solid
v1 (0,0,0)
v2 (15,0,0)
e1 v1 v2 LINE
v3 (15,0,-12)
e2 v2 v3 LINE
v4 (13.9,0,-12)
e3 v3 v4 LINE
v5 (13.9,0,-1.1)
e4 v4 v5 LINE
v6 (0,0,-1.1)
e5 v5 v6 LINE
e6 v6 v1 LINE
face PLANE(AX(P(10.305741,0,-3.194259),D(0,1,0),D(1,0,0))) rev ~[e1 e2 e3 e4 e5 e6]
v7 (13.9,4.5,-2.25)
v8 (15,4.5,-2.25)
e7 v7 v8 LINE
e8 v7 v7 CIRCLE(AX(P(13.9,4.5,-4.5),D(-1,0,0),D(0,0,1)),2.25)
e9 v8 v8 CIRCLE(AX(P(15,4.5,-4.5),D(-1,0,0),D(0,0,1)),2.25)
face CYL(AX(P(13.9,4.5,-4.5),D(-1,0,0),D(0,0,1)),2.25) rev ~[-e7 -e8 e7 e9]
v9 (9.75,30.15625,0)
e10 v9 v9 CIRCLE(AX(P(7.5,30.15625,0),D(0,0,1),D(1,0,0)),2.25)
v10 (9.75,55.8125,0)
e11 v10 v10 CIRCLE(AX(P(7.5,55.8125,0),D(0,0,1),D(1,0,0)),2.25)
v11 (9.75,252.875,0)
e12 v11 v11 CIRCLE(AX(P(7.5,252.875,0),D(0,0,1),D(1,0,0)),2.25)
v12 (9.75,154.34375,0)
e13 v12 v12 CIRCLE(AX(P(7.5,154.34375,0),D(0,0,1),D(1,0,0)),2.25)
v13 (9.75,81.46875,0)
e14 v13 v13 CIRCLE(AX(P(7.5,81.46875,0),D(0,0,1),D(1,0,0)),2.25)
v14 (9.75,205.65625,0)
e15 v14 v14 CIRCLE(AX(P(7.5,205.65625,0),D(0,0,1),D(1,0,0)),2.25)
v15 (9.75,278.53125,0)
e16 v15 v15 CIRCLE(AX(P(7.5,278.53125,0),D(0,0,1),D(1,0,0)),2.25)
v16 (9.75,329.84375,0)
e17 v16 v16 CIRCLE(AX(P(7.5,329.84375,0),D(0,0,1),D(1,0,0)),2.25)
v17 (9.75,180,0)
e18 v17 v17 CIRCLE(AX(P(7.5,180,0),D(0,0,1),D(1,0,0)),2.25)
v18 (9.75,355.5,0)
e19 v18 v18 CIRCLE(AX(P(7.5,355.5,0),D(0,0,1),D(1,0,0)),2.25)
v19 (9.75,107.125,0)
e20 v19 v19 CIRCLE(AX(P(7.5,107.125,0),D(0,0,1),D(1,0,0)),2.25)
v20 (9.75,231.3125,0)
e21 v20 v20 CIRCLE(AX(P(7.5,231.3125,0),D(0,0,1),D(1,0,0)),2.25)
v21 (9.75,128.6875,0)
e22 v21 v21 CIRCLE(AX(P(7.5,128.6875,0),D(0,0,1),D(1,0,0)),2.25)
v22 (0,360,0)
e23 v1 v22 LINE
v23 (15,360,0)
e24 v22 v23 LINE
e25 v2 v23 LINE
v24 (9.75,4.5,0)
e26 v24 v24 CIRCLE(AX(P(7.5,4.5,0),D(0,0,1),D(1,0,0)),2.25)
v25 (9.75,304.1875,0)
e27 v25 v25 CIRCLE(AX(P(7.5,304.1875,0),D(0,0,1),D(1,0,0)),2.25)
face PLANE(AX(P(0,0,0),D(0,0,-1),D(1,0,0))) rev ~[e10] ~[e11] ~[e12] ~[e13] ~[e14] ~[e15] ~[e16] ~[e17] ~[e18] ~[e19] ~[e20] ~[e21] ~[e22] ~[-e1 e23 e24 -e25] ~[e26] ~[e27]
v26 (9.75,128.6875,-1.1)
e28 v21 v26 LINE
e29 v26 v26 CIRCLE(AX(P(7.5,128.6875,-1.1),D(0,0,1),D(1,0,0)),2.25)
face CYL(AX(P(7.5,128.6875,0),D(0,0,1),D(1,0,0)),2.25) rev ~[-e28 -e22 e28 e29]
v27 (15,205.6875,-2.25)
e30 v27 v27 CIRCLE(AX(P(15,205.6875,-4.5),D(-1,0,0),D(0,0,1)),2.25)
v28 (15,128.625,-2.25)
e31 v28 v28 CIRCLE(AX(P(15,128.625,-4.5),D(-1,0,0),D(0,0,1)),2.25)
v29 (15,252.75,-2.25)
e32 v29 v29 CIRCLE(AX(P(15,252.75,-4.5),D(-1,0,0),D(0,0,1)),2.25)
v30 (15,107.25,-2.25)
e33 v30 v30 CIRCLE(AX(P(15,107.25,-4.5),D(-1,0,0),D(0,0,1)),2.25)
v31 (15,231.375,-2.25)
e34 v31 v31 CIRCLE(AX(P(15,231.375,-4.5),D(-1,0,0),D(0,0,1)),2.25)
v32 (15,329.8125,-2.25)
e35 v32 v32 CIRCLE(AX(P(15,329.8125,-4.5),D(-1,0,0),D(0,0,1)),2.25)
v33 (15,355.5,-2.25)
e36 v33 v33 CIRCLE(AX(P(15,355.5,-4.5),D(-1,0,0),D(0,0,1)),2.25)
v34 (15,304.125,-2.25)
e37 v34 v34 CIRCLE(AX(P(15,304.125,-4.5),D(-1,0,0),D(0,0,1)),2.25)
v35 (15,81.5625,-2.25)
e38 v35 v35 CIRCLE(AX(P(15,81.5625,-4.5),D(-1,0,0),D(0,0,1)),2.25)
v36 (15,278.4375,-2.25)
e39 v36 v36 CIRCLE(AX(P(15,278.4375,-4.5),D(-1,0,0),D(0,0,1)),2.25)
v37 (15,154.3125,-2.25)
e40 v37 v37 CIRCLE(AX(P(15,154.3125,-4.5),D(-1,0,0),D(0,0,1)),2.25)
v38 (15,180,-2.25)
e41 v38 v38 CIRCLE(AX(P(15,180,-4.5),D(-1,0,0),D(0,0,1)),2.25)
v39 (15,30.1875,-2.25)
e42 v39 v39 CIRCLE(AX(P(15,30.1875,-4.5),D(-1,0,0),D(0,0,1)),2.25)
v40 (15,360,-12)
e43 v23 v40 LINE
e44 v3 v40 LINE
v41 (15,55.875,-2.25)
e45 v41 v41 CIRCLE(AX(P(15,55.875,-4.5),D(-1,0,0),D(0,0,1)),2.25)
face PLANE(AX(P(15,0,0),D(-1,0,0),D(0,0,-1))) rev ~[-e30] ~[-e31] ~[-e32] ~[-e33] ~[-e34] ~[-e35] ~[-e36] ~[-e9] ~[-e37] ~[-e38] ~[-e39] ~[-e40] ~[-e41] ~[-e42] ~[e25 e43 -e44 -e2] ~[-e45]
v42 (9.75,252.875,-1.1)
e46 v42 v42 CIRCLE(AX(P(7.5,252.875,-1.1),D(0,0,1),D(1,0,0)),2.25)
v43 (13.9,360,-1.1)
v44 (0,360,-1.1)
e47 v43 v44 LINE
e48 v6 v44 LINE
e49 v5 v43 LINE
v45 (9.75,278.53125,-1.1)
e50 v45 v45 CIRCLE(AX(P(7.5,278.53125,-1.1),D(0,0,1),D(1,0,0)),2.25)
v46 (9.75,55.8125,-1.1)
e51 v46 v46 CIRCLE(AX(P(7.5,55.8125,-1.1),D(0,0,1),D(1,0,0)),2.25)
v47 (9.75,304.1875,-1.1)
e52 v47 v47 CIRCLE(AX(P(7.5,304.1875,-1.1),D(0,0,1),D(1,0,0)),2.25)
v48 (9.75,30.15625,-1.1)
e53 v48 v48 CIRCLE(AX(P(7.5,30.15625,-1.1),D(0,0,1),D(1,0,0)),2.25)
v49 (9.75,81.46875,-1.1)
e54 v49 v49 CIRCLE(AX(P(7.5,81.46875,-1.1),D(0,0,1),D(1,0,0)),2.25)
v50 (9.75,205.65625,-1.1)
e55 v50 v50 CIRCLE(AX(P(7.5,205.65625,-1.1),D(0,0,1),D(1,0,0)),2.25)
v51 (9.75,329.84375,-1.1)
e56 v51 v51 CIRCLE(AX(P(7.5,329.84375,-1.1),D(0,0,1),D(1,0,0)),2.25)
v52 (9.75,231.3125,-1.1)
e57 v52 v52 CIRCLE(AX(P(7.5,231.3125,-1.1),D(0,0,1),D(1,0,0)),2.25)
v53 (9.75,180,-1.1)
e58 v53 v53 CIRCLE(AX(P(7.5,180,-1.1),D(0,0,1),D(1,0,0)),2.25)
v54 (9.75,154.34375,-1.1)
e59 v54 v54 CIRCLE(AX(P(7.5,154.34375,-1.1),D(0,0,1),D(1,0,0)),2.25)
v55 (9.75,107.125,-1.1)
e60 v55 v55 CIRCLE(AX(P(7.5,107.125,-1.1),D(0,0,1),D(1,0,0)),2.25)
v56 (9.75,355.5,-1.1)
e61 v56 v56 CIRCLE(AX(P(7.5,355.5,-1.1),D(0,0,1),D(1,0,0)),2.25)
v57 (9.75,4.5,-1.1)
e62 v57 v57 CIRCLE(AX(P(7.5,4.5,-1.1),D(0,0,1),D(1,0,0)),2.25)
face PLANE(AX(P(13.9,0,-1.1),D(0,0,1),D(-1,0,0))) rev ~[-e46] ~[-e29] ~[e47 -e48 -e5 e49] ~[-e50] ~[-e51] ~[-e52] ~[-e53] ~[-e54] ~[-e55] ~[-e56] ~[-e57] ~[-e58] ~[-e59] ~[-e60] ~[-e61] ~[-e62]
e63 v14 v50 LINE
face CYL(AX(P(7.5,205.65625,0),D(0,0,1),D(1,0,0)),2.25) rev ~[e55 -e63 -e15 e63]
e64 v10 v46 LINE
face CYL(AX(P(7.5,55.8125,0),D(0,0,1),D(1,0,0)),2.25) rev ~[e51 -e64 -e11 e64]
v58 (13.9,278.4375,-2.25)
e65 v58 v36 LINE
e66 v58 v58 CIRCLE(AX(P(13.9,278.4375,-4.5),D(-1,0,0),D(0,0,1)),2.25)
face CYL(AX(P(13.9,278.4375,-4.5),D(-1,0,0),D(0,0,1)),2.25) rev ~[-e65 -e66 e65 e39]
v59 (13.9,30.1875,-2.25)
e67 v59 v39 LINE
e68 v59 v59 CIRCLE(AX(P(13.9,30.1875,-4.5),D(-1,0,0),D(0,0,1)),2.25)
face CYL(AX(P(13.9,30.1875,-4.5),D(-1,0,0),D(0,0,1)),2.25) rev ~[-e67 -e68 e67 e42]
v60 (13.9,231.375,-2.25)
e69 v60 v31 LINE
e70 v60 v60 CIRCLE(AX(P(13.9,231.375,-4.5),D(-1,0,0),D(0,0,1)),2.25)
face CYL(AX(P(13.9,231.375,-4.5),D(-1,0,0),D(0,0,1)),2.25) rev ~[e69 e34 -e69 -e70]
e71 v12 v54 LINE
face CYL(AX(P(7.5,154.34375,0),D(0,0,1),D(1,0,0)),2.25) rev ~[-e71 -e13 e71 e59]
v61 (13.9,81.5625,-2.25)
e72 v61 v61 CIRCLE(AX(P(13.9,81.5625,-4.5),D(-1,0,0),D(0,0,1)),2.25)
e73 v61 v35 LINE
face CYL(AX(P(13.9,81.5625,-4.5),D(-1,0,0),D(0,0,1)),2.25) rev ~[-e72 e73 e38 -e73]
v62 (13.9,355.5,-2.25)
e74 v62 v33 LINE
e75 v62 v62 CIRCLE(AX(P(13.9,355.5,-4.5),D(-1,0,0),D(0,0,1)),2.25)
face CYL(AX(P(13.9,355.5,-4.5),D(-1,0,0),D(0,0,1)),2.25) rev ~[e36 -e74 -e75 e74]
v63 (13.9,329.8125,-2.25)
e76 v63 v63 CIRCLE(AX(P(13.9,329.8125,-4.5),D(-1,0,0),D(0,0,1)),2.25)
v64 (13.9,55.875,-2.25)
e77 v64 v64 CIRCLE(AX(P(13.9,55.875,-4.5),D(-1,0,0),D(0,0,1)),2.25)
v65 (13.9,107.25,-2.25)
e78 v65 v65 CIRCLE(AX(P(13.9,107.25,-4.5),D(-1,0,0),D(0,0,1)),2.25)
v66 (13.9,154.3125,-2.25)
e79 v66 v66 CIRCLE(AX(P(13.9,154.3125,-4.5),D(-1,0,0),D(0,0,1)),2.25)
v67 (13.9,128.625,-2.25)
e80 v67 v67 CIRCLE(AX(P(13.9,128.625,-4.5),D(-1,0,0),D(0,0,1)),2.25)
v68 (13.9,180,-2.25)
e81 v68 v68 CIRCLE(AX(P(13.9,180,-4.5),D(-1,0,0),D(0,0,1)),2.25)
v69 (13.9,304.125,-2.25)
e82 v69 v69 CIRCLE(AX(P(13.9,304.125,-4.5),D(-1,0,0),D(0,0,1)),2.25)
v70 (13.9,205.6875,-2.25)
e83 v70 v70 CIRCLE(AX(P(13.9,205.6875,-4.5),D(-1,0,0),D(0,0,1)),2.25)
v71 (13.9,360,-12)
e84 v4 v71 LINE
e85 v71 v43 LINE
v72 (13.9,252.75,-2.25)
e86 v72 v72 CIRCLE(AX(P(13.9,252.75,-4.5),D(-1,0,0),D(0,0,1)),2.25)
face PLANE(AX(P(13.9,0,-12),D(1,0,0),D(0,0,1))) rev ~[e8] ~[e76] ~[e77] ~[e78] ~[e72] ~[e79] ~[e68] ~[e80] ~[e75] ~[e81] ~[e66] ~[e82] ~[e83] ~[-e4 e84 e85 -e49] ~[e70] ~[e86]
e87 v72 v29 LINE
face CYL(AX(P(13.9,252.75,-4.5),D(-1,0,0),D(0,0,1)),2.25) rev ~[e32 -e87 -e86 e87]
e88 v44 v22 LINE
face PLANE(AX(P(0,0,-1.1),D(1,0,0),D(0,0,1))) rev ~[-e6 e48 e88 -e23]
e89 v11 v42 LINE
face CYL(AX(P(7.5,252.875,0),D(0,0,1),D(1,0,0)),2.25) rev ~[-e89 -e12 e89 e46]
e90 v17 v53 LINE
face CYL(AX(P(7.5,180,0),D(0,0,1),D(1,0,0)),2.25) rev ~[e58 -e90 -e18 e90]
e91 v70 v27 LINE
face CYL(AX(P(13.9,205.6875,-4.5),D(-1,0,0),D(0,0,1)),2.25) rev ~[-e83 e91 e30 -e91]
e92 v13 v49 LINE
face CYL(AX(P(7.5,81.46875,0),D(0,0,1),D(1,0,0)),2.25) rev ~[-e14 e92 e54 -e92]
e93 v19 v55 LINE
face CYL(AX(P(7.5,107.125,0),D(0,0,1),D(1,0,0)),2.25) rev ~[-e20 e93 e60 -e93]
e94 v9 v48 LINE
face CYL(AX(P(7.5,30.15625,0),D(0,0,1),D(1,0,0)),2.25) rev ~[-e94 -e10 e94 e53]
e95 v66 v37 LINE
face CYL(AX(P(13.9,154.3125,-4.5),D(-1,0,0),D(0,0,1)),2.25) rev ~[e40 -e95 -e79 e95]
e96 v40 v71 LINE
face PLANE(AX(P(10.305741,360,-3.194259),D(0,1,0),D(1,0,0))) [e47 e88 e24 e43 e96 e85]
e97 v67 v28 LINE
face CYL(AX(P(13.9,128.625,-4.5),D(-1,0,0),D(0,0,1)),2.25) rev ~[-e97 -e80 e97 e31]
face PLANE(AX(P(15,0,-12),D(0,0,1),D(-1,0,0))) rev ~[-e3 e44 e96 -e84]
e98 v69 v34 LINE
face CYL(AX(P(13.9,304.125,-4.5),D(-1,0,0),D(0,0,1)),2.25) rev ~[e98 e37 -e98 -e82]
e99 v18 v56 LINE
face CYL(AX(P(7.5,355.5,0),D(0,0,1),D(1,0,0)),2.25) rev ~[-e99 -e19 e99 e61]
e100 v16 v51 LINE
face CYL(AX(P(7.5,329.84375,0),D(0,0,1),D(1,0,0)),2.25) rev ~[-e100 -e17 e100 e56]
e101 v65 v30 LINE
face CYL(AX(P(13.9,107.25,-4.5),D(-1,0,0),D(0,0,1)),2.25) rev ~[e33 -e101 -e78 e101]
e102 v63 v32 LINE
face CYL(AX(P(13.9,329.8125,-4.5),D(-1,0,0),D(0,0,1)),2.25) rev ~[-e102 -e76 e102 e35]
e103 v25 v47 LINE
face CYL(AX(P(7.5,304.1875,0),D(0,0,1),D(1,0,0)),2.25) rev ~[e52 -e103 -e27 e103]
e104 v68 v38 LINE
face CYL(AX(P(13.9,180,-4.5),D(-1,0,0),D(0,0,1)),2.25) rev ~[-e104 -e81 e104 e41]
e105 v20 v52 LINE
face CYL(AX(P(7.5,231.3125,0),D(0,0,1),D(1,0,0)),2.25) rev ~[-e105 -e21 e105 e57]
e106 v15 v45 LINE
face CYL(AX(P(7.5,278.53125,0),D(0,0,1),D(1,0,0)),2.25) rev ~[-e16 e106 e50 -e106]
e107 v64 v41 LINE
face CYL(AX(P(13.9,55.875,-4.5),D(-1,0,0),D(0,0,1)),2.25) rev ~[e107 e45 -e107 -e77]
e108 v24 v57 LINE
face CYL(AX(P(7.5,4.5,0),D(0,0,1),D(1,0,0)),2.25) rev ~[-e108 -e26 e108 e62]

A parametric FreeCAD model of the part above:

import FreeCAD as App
import Part
import Sketcher
from FreeCAD import Vector
Q = App.Units.Quantity

doc = App.newDocument("Part")
body = doc.addObject("PartDesign::Body", "Body")

sketch1 = body.newObject("Sketcher::SketchObject", "Sketch")
sketch1.AttachmentSupport = (doc.getObject("XZ_Plane"), [""])
sketch1.MapMode = "FlatFace"
sketch1.addGeometry([
    Part.LineSegment(Vector(0, 0, 0), Vector(15, 0, 0)),
    Part.LineSegment(Vector(15, 0, 0), Vector(15, -12, 0)),
    Part.LineSegment(Vector(15, -12, 0), Vector(13.9, -12, 0)),
    Part.LineSegment(Vector(13.9, -12, 0), Vector(13.9, -1.1, 0)),
    Part.LineSegment(Vector(13.9, -1.1, 0), Vector(0, -1.1, 0)),
    Part.LineSegment(Vector(0, -1.1, 0), Vector(0, 0, 0)),
], False)
sketch1.addConstraint([
    Sketcher.Constraint("Coincident", 0, 2, 1, 1),
    Sketcher.Constraint("Coincident", 1, 2, 2, 1),
    Sketcher.Constraint("Coincident", 2, 2, 3, 1),
    Sketcher.Constraint("Coincident", 3, 2, 4, 1),
    Sketcher.Constraint("Coincident", 4, 2, 5, 1),
    Sketcher.Constraint("Coincident", 5, 2, 0, 1),
    Sketcher.Constraint("Horizontal", 0),
    Sketcher.Constraint("Vertical", 1),
    Sketcher.Constraint("Horizontal", 2),
    Sketcher.Constraint("Vertical", 3),
    Sketcher.Constraint("Horizontal", 4),
    Sketcher.Constraint("Vertical", 5),
    Sketcher.Constraint("Coincident", 5, 2, -1, 1),
    Sketcher.Constraint("Equal", 2, 5),
    Sketcher.Constraint("DistanceX", 0, 1, 0, 2, Q("15 mm")),
    Sketcher.Constraint("DistanceY", 1, 2, 1, 1, Q("12 mm")),
    Sketcher.Constraint("DistanceX", 2, 2, 2, 1, Q("1.1 mm")),
])
pad1 = body.newObject("PartDesign::Pad", "Pad")
pad1.Profile = sketch1
pad1.Length = 360
pad1.Reversed = True

sketch2 = body.newObject("Sketcher::SketchObject", "Sketch001")
sketch2.AttachmentSupport = (doc.getObject("YZ_Plane"), [""])
sketch2.MapMode = "FlatFace"
sketch2.AttachmentOffset = App.Placement(Vector(0, 0, 13.9), App.Rotation())
sketch2.addGeometry(Part.Circle(Vector(329.8, -4.5, 0), Vector(0, 0, 1), 2.2), False)
sketch2.addConstraint([
    Sketcher.Constraint("Diameter", 0, Q("4.5 mm")),
    Sketcher.Constraint("DistanceY", 0, 3, -1, 1, Q("4.5 mm")),
    Sketcher.Constraint("DistanceX", -1, 1, 0, 3, Q("329.8125 mm")),
])
pocket1 = body.newObject("PartDesign::Pocket", "Pocket")
pocket1.Profile = sketch2
pocket1.Type = "UpToFirst"
pocket1.Reversed = True

sketch3 = body.newObject("Sketcher::SketchObject", "Sketch002")
sketch3.AttachmentSupport = (doc.getObject("YZ_Plane"), [""])
sketch3.MapMode = "FlatFace"
sketch3.AttachmentOffset = App.Placement(Vector(0, 0, 13.9), App.Rotation())
sketch3.addGeometry(Part.Circle(Vector(304.1, -4.5, 0), Vector(0, 0, 1), 2.2), False)
sketch3.addConstraint([
    Sketcher.Constraint("Diameter", 0, Q("4.5 mm")),
    Sketcher.Constraint("DistanceY", 0, 3, -1, 1, Q("4.5 mm")),
    Sketcher.Constraint("DistanceX", -1, 1, 0, 3, Q("304.125 mm")),
])
pocket2 = body.newObject("PartDesign::Pocket", "Pocket001")
pocket2.Profile = sketch3
pocket2.Type = "UpToFirst"
pocket2.Reversed = True

sketch4 = body.newObject("Sketcher::SketchObject", "Sketch003")
sketch4.AttachmentSupport = (doc.getObject("YZ_Plane"), [""])
sketch4.MapMode = "FlatFace"
sketch4.AttachmentOffset = App.Placement(Vector(0, 0, 13.9), App.Rotation())
sketch4.addGeometry(Part.Circle(Vector(278.4, -4.5, 0), Vector(0, 0, 1), 2.2), False)
sketch4.addConstraint([
    Sketcher.Constraint("Diameter", 0, Q("4.5 mm")),
    Sketcher.Constraint("DistanceY", 0, 3, -1, 1, Q("4.5 mm")),
    Sketcher.Constraint("DistanceX", -1, 1, 0, 3, Q("278.4375 mm")),
])
pocket3 = body.newObject("PartDesign::Pocket", "Pocket002")
pocket3.Profile = sketch4
pocket3.Type = "UpToFirst"
pocket3.Reversed = True

sketch5 = body.newObject("Sketcher::SketchObject", "Sketch004")
sketch5.AttachmentSupport = (doc.getObject("YZ_Plane"), [""])
sketch5.MapMode = "FlatFace"
sketch5.AttachmentOffset = App.Placement(Vector(0, 0, 13.9), App.Rotation())
sketch5.addGeometry(Part.Circle(Vector(252.8, -4.5, 0), Vector(0, 0, 1), 2.2), False)
sketch5.addConstraint([
    Sketcher.Constraint("Diameter", 0, Q("4.5 mm")),
    Sketcher.Constraint("DistanceY", 0, 3, -1, 1, Q("4.5 mm")),
    Sketcher.Constraint("DistanceX", -1, 1, 0, 3, Q("252.75 mm")),
])
pocket4 = body.newObject("PartDesign::Pocket", "Pocket003")
pocket4.Profile = sketch5
pocket4.Type = "UpToFirst"
pocket4.Reversed = True

sketch6 = body.newObject("Sketcher::SketchObject", "Sketch005")
sketch6.AttachmentSupport = (doc.getObject("YZ_Plane"), [""])
sketch6.MapMode = "FlatFace"
sketch6.AttachmentOffset = App.Placement(Vector(0, 0, 13.9), App.Rotation())
sketch6.addGeometry(Part.Circle(Vector(231.4, -4.5, 0), Vector(0, 0, 1), 2.2), False)
sketch6.addConstraint([
    Sketcher.Constraint("Diameter", 0, Q("4.5 mm")),
    Sketcher.Constraint("DistanceY", 0, 3, -1, 1, Q("4.5 mm")),
    Sketcher.Constraint("DistanceX", -1, 1, 0, 3, Q("231.375 mm")),
])
pocket5 = body.newObject("PartDesign::Pocket", "Pocket004")
pocket5.Profile = sketch6
pocket5.Type = "UpToFirst"
pocket5.Reversed = True

sketch7 = body.newObject("Sketcher::SketchObject", "Sketch006")
sketch7.AttachmentSupport = (doc.getObject("YZ_Plane"), [""])
sketch7.MapMode = "FlatFace"
sketch7.AttachmentOffset = App.Placement(Vector(0, 0, 13.9), App.Rotation())
sketch7.addGeometry(Part.Circle(Vector(205.7, -4.5, 0), Vector(0, 0, 1), 2.2), False)
sketch7.addConstraint([
    Sketcher.Constraint("Diameter", 0, Q("4.5 mm")),
    Sketcher.Constraint("DistanceY", 0, 3, -1, 1, Q("4.5 mm")),
    Sketcher.Constraint("DistanceX", -1, 1, 0, 3, Q("205.6875 mm")),
])
pocket6 = body.newObject("PartDesign::Pocket", "Pocket005")
pocket6.Profile = sketch7
pocket6.Type = "UpToFirst"
pocket6.Reversed = True

sketch8 = body.newObject("Sketcher::SketchObject", "Sketch007")
sketch8.AttachmentSupport = (doc.getObject("YZ_Plane"), [""])
sketch8.MapMode = "FlatFace"
sketch8.AttachmentOffset = App.Placement(Vector(0, 0, 13.9), App.Rotation())
sketch8.addGeometry(Part.Circle(Vector(180, -4.5, 0), Vector(0, 0, 1), 2.2), False)
sketch8.addConstraint([
    Sketcher.Constraint("Diameter", 0, Q("4.5 mm")),
    Sketcher.Constraint("DistanceX", -1, 1, 0, 3, Q("180 mm")),
    Sketcher.Constraint("DistanceY", 0, 3, -1, 1, Q("4.5 mm")),
])
pocket7 = body.newObject("PartDesign::Pocket", "Pocket006")
pocket7.Profile = sketch8
pocket7.Type = "UpToFirst"
pocket7.Reversed = True

sketch9 = body.newObject("Sketcher::SketchObject", "Sketch008")
sketch9.AttachmentSupport = (doc.getObject("YZ_Plane"), [""])
sketch9.MapMode = "FlatFace"
sketch9.AttachmentOffset = App.Placement(Vector(0, 0, 13.9), App.Rotation())
sketch9.addGeometry(Part.Circle(Vector(154.3, -4.5, 0), Vector(0, 0, 1), 2.2), False)
sketch9.addConstraint([
    Sketcher.Constraint("Diameter", 0, Q("4.5 mm")),
    Sketcher.Constraint("DistanceY", 0, 3, -1, 1, Q("4.5 mm")),
    Sketcher.Constraint("DistanceX", -1, 1, 0, 3, Q("154.3125 mm")),
])
pocket8 = body.newObject("PartDesign::Pocket", "Pocket007")
pocket8.Profile = sketch9
pocket8.Type = "UpToFirst"
pocket8.Reversed = True

sketch10 = body.newObject("Sketcher::SketchObject", "Sketch009")
sketch10.AttachmentSupport = (doc.getObject("YZ_Plane"), [""])
sketch10.MapMode = "FlatFace"
sketch10.AttachmentOffset = App.Placement(Vector(0, 0, 13.9), App.Rotation())
sketch10.addGeometry(Part.Circle(Vector(128.6, -4.5, 0), Vector(0, 0, 1), 2.2), False)
sketch10.addConstraint([
    Sketcher.Constraint("Diameter", 0, Q("4.5 mm")),
    Sketcher.Constraint("DistanceY", 0, 3, -1, 1, Q("4.5 mm")),
    Sketcher.Constraint("DistanceX", -1, 1, 0, 3, Q("128.625 mm")),
])
pocket9 = body.newObject("PartDesign::Pocket", "Pocket008")
pocket9.Profile = sketch10
pocket9.Type = "UpToFirst"
pocket9.Reversed = True

sketch11 = body.newObject("Sketcher::SketchObject", "Sketch010")
sketch11.AttachmentSupport = (doc.getObject("YZ_Plane"), [""])
sketch11.MapMode = "FlatFace"
sketch11.AttachmentOffset = App.Placement(Vector(0, 0, 13.9), App.Rotation())
sketch11.addGeometry(Part.Circle(Vector(107.2, -4.5, 0), Vector(0, 0, 1), 2.2), False)
sketch11.addConstraint([
    Sketcher.Constraint("Diameter", 0, Q("4.5 mm")),
    Sketcher.Constraint("DistanceY", 0, 3, -1, 1, Q("4.5 mm")),
    Sketcher.Constraint("DistanceX", -1, 1, 0, 3, Q("107.25 mm")),
])
pocket10 = body.newObject("PartDesign::Pocket", "Pocket009")
pocket10.Profile = sketch11
pocket10.Type = "UpToFirst"
pocket10.Reversed = True

sketch12 = body.newObject("Sketcher::SketchObject", "Sketch011")
sketch12.AttachmentSupport = (doc.getObject("YZ_Plane"), [""])
sketch12.MapMode = "FlatFace"
sketch12.AttachmentOffset = App.Placement(Vector(0, 0, 13.9), App.Rotation())
sketch12.addGeometry(Part.Circle(Vector(81.6, -4.5, 0), Vector(0, 0, 1), 2.2), False)
sketch12.addConstraint([
    Sketcher.Constraint("Diameter", 0, Q("4.5 mm")),
    Sketcher.Constraint("DistanceY", 0, 3, -1, 1, Q("4.5 mm")),
    Sketcher.Constraint("DistanceX", -1, 1, 0, 3, Q("81.5625 mm")),
])
pocket11 = body.newObject("PartDesign::Pocket", "Pocket010")
pocket11.Profile = sketch12
pocket11.Type = "UpToFirst"
pocket11.Reversed = True

sketch13 = body.newObject("Sketcher::SketchObject", "Sketch012")
sketch13.AttachmentSupport = (doc.getObject("YZ_Plane"), [""])
sketch13.MapMode = "FlatFace"
sketch13.AttachmentOffset = App.Placement(Vector(0, 0, 13.9), App.Rotation())
sketch13.addGeometry(Part.Circle(Vector(55.9, -4.5, 0), Vector(0, 0, 1), 2.2), False)
sketch13.addConstraint([
    Sketcher.Constraint("Diameter", 0, Q("4.5 mm")),
    Sketcher.Constraint("DistanceY", 0, 3, -1, 1, Q("4.5 mm")),
    Sketcher.Constraint("DistanceX", -1, 1, 0, 3, Q("55.875 mm")),
])
pocket12 = body.newObject("PartDesign::Pocket", "Pocket011")
pocket12.Profile = sketch13
pocket12.Type = "UpToFirst"
pocket12.Reversed = True

sketch14 = body.newObject("Sketcher::SketchObject", "Sketch013")
sketch14.AttachmentSupport = (doc.getObject("YZ_Plane"), [""])
sketch14.MapMode = "FlatFace"
sketch14.AttachmentOffset = App.Placement(Vector(0, 0, 13.9), App.Rotation())
sketch14.addGeometry(Part.Circle(Vector(30.2, -4.5, 0), Vector(0, 0, 1), 2.2), False)
sketch14.addConstraint([
    Sketcher.Constraint("Diameter", 0, Q("4.5 mm")),
    Sketcher.Constraint("DistanceY", 0, 3, -1, 1, Q("4.5 mm")),
    Sketcher.Constraint("DistanceX", -1, 1, 0, 3, Q("30.1875 mm")),
])
pocket13 = body.newObject("PartDesign::Pocket", "Pocket012")
pocket13.Profile = sketch14
pocket13.Type = "UpToFirst"
pocket13.Reversed = True

sketch15 = body.newObject("Sketcher::SketchObject", "Sketch014")
sketch15.AttachmentSupport = (doc.getObject("YZ_Plane"), [""])
sketch15.MapMode = "FlatFace"
sketch15.AttachmentOffset = App.Placement(Vector(0, 0, 13.9), App.Rotation())
sketch15.addGeometry(Part.Circle(Vector(4.5, -4.5, 0), Vector(0, 0, 1), 2.2), False)
sketch15.addConstraint([
    Sketcher.Constraint("Diameter", 0, Q("4.5 mm")),
    Sketcher.Constraint("DistanceX", -1, 1, 0, 3, Q("4.5 mm")),
    Sketcher.Constraint("DistanceY", 0, 3, -1, 1, Q("4.5 mm")),
])
pocket14 = body.newObject("PartDesign::Pocket", "Pocket013")
pocket14.Profile = sketch15
pocket14.Type = "UpToFirst"
pocket14.Reversed = True

sketch16 = body.newObject("Sketcher::SketchObject", "Sketch015")
sketch16.AttachmentSupport = (doc.getObject("YZ_Plane"), [""])
sketch16.MapMode = "FlatFace"
sketch16.AttachmentOffset = App.Placement(Vector(0, 0, 13.9), App.Rotation())
sketch16.addGeometry(Part.Circle(Vector(355.5, -4.5, 0), Vector(0, 0, 1), 2.2), False)
sketch16.addConstraint([
    Sketcher.Constraint("Diameter", 0, Q("4.5 mm")),
    Sketcher.Constraint("DistanceX", -1, 1, 0, 3, Q("355.5 mm")),
    Sketcher.Constraint("DistanceY", 0, 3, -1, 1, Q("4.5 mm")),
])
pocket15 = body.newObject("PartDesign::Pocket", "Pocket014")
pocket15.Profile = sketch16
pocket15.Type = "UpToFirst"
pocket15.Reversed = True

sketch17 = body.newObject("Sketcher::SketchObject", "Sketch016")
sketch17.AttachmentSupport = (doc.getObject("XY_Plane"), [""])
sketch17.MapMode = "FlatFace"
sketch17.addGeometry(Part.Circle(Vector(7.5, 355.5, 0), Vector(0, 0, 1), 2.2), False)
sketch17.addConstraint([
    Sketcher.Constraint("Diameter", 0, Q("4.5 mm")),
    Sketcher.Constraint("DistanceX", -1, 1, 0, 3, Q("7.5 mm")),
    Sketcher.Constraint("DistanceY", -1, 1, 0, 3, Q("355.5 mm")),
])
pocket16 = body.newObject("PartDesign::Pocket", "Pocket015")
pocket16.Profile = sketch17
pocket16.Length = 1.1
doc.recompute()

linearpattern = body.newObject("PartDesign::LinearPattern", "LinearPattern")
linearpattern.Originals = [pocket16]
linearpattern.Direction = (doc.getObject("Y_Axis"), [""])
linearpattern.Mode = "offset"
linearpattern.Offset = 25.65625
linearpattern.Occurrences = 5
linearpattern.Reversed = True
body.Tip = linearpattern
doc.recompute()

linearpattern2 = body.newObject("PartDesign::LinearPattern", "LinearPattern001")
linearpattern2.Originals = [pocket16]
linearpattern2.Direction = (doc.getObject("Y_Axis"), [""])
linearpattern2.Mode = "offset"
linearpattern2.Offset = 124.1875
linearpattern2.Occurrences = 3
linearpattern2.Reversed = True
body.Tip = linearpattern2

sketch18 = body.newObject("Sketcher::SketchObject", "Sketch017")
sketch18.AttachmentSupport = (doc.getObject("XY_Plane"), [""])
sketch18.MapMode = "FlatFace"
sketch18.addGeometry(Part.Circle(Vector(7.5, 205.7, 0), Vector(0, 0, 1), 2.2), False)
sketch18.addConstraint([
    Sketcher.Constraint("Diameter", 0, Q("4.5 mm")),
    Sketcher.Constraint("DistanceX", -1, 1, 0, 3, Q("7.5 mm")),
    Sketcher.Constraint("DistanceY", -1, 1, 0, 3, Q("205.65625 mm")),
])
pocket17 = body.newObject("PartDesign::Pocket", "Pocket016")
pocket17.Profile = sketch18
pocket17.Length = 1.1

sketch19 = body.newObject("Sketcher::SketchObject", "Sketch018")
sketch19.AttachmentSupport = (doc.getObject("XY_Plane"), [""])
sketch19.MapMode = "FlatFace"
sketch19.addGeometry(Part.Circle(Vector(7.5, 81.5, 0), Vector(0, 0, 1), 2.2), False)
sketch19.addConstraint([
    Sketcher.Constraint("Diameter", 0, Q("4.5 mm")),
    Sketcher.Constraint("DistanceX", -1, 1, 0, 3, Q("7.5 mm")),
    Sketcher.Constraint("DistanceY", -1, 1, 0, 3, Q("81.46875 mm")),
])
pocket18 = body.newObject("PartDesign::Pocket", "Pocket017")
pocket18.Profile = sketch19
pocket18.Length = 1.1

sketch20 = body.newObject("Sketcher::SketchObject", "Sketch019")
sketch20.AttachmentSupport = (doc.getObject("XY_Plane"), [""])
sketch20.MapMode = "FlatFace"
sketch20.addGeometry(Part.Circle(Vector(7.5, 180, 0), Vector(0, 0, 1), 2.2), False)
sketch20.addConstraint([
    Sketcher.Constraint("Diameter", 0, Q("4.5 mm")),
    Sketcher.Constraint("DistanceY", -1, 1, 0, 3, Q("180 mm")),
    Sketcher.Constraint("DistanceX", -1, 1, 0, 3, Q("7.5 mm")),
])
pocket19 = body.newObject("PartDesign::Pocket", "Pocket018")
pocket19.Profile = sketch20
pocket19.Length = 1.1

sketch21 = body.newObject("Sketcher::SketchObject", "Sketch020")
sketch21.AttachmentSupport = (doc.getObject("XY_Plane"), [""])
sketch21.MapMode = "FlatFace"
sketch21.addGeometry(Part.Circle(Vector(7.5, 55.8, 0), Vector(0, 0, 1), 2.2), False)
sketch21.addConstraint([
    Sketcher.Constraint("Diameter", 0, Q("4.5 mm")),
    Sketcher.Constraint("DistanceX", -1, 1, 0, 3, Q("7.5 mm")),
    Sketcher.Constraint("DistanceY", -1, 1, 0, 3, Q("55.8125 mm")),
])
pocket20 = body.newObject("PartDesign::Pocket", "Pocket019")
pocket20.Profile = sketch21
pocket20.Length = 1.1

sketch22 = body.newObject("Sketcher::SketchObject", "Sketch021")
sketch22.AttachmentSupport = (doc.getObject("XY_Plane"), [""])
sketch22.MapMode = "FlatFace"
sketch22.addGeometry(Part.Circle(Vector(7.5, 154.3, 0), Vector(0, 0, 1), 2.2), False)
sketch22.addConstraint([
    Sketcher.Constraint("Diameter", 0, Q("4.5 mm")),
    Sketcher.Constraint("DistanceX", -1, 1, 0, 3, Q("7.5 mm")),
    Sketcher.Constraint("DistanceY", -1, 1, 0, 3, Q("154.34375 mm")),
])
pocket21 = body.newObject("PartDesign::Pocket", "Pocket020")
pocket21.Profile = sketch22
pocket21.Length = 1.1

sketch23 = body.newObject("Sketcher::SketchObject", "Sketch022")
sketch23.AttachmentSupport = (doc.getObject("XY_Plane"), [""])
sketch23.MapMode = "FlatFace"
sketch23.addGeometry(Part.Circle(Vector(7.5, 30.2, 0), Vector(0, 0, 1), 2.2), False)
sketch23.addConstraint([
    Sketcher.Constraint("Diameter", 0, Q("4.5 mm")),
    Sketcher.Constraint("DistanceX", -1, 1, 0, 3, Q("7.5 mm")),
    Sketcher.Constraint("DistanceY", -1, 1, 0, 3, Q("30.15625 mm")),
])
pocket22 = body.newObject("PartDesign::Pocket", "Pocket021")
pocket22.Profile = sketch23
pocket22.Length = 1.1

sketch24 = body.newObject("Sketcher::SketchObject", "Sketch023")
sketch24.AttachmentSupport = (doc.getObject("XY_Plane"), [""])
sketch24.MapMode = "FlatFace"
sketch24.addGeometry(Part.Circle(Vector(7.5, 128.7, 0), Vector(0, 0, 1), 2.2), False)
sketch24.addConstraint([
    Sketcher.Constraint("Diameter", 0, Q("4.5 mm")),
    Sketcher.Constraint("DistanceX", -1, 1, 0, 3, Q("7.5 mm")),
    Sketcher.Constraint("DistanceY", -1, 1, 0, 3, Q("128.6875 mm")),
])
pocket23 = body.newObject("PartDesign::Pocket", "Pocket022")
pocket23.Profile = sketch24
pocket23.Length = 1.1

sketch25 = body.newObject("Sketcher::SketchObject", "Sketch024")
sketch25.AttachmentSupport = (doc.getObject("XY_Plane"), [""])
sketch25.MapMode = "FlatFace"
sketch25.addGeometry(Part.Circle(Vector(7.5, 4.5, 0), Vector(0, 0, 1), 2.2), False)
sketch25.addConstraint([
    Sketcher.Constraint("Diameter", 0, Q("4.5 mm")),
    Sketcher.Constraint("DistanceX", -1, 1, 0, 3, Q("7.5 mm")),
    Sketcher.Constraint("DistanceY", -1, 1, 0, 3, Q("4.5 mm")),
])
pocket24 = body.newObject("PartDesign::Pocket", "Pocket023")
pocket24.Profile = sketch25
pocket24.Length = 1.1

doc.recompute()
